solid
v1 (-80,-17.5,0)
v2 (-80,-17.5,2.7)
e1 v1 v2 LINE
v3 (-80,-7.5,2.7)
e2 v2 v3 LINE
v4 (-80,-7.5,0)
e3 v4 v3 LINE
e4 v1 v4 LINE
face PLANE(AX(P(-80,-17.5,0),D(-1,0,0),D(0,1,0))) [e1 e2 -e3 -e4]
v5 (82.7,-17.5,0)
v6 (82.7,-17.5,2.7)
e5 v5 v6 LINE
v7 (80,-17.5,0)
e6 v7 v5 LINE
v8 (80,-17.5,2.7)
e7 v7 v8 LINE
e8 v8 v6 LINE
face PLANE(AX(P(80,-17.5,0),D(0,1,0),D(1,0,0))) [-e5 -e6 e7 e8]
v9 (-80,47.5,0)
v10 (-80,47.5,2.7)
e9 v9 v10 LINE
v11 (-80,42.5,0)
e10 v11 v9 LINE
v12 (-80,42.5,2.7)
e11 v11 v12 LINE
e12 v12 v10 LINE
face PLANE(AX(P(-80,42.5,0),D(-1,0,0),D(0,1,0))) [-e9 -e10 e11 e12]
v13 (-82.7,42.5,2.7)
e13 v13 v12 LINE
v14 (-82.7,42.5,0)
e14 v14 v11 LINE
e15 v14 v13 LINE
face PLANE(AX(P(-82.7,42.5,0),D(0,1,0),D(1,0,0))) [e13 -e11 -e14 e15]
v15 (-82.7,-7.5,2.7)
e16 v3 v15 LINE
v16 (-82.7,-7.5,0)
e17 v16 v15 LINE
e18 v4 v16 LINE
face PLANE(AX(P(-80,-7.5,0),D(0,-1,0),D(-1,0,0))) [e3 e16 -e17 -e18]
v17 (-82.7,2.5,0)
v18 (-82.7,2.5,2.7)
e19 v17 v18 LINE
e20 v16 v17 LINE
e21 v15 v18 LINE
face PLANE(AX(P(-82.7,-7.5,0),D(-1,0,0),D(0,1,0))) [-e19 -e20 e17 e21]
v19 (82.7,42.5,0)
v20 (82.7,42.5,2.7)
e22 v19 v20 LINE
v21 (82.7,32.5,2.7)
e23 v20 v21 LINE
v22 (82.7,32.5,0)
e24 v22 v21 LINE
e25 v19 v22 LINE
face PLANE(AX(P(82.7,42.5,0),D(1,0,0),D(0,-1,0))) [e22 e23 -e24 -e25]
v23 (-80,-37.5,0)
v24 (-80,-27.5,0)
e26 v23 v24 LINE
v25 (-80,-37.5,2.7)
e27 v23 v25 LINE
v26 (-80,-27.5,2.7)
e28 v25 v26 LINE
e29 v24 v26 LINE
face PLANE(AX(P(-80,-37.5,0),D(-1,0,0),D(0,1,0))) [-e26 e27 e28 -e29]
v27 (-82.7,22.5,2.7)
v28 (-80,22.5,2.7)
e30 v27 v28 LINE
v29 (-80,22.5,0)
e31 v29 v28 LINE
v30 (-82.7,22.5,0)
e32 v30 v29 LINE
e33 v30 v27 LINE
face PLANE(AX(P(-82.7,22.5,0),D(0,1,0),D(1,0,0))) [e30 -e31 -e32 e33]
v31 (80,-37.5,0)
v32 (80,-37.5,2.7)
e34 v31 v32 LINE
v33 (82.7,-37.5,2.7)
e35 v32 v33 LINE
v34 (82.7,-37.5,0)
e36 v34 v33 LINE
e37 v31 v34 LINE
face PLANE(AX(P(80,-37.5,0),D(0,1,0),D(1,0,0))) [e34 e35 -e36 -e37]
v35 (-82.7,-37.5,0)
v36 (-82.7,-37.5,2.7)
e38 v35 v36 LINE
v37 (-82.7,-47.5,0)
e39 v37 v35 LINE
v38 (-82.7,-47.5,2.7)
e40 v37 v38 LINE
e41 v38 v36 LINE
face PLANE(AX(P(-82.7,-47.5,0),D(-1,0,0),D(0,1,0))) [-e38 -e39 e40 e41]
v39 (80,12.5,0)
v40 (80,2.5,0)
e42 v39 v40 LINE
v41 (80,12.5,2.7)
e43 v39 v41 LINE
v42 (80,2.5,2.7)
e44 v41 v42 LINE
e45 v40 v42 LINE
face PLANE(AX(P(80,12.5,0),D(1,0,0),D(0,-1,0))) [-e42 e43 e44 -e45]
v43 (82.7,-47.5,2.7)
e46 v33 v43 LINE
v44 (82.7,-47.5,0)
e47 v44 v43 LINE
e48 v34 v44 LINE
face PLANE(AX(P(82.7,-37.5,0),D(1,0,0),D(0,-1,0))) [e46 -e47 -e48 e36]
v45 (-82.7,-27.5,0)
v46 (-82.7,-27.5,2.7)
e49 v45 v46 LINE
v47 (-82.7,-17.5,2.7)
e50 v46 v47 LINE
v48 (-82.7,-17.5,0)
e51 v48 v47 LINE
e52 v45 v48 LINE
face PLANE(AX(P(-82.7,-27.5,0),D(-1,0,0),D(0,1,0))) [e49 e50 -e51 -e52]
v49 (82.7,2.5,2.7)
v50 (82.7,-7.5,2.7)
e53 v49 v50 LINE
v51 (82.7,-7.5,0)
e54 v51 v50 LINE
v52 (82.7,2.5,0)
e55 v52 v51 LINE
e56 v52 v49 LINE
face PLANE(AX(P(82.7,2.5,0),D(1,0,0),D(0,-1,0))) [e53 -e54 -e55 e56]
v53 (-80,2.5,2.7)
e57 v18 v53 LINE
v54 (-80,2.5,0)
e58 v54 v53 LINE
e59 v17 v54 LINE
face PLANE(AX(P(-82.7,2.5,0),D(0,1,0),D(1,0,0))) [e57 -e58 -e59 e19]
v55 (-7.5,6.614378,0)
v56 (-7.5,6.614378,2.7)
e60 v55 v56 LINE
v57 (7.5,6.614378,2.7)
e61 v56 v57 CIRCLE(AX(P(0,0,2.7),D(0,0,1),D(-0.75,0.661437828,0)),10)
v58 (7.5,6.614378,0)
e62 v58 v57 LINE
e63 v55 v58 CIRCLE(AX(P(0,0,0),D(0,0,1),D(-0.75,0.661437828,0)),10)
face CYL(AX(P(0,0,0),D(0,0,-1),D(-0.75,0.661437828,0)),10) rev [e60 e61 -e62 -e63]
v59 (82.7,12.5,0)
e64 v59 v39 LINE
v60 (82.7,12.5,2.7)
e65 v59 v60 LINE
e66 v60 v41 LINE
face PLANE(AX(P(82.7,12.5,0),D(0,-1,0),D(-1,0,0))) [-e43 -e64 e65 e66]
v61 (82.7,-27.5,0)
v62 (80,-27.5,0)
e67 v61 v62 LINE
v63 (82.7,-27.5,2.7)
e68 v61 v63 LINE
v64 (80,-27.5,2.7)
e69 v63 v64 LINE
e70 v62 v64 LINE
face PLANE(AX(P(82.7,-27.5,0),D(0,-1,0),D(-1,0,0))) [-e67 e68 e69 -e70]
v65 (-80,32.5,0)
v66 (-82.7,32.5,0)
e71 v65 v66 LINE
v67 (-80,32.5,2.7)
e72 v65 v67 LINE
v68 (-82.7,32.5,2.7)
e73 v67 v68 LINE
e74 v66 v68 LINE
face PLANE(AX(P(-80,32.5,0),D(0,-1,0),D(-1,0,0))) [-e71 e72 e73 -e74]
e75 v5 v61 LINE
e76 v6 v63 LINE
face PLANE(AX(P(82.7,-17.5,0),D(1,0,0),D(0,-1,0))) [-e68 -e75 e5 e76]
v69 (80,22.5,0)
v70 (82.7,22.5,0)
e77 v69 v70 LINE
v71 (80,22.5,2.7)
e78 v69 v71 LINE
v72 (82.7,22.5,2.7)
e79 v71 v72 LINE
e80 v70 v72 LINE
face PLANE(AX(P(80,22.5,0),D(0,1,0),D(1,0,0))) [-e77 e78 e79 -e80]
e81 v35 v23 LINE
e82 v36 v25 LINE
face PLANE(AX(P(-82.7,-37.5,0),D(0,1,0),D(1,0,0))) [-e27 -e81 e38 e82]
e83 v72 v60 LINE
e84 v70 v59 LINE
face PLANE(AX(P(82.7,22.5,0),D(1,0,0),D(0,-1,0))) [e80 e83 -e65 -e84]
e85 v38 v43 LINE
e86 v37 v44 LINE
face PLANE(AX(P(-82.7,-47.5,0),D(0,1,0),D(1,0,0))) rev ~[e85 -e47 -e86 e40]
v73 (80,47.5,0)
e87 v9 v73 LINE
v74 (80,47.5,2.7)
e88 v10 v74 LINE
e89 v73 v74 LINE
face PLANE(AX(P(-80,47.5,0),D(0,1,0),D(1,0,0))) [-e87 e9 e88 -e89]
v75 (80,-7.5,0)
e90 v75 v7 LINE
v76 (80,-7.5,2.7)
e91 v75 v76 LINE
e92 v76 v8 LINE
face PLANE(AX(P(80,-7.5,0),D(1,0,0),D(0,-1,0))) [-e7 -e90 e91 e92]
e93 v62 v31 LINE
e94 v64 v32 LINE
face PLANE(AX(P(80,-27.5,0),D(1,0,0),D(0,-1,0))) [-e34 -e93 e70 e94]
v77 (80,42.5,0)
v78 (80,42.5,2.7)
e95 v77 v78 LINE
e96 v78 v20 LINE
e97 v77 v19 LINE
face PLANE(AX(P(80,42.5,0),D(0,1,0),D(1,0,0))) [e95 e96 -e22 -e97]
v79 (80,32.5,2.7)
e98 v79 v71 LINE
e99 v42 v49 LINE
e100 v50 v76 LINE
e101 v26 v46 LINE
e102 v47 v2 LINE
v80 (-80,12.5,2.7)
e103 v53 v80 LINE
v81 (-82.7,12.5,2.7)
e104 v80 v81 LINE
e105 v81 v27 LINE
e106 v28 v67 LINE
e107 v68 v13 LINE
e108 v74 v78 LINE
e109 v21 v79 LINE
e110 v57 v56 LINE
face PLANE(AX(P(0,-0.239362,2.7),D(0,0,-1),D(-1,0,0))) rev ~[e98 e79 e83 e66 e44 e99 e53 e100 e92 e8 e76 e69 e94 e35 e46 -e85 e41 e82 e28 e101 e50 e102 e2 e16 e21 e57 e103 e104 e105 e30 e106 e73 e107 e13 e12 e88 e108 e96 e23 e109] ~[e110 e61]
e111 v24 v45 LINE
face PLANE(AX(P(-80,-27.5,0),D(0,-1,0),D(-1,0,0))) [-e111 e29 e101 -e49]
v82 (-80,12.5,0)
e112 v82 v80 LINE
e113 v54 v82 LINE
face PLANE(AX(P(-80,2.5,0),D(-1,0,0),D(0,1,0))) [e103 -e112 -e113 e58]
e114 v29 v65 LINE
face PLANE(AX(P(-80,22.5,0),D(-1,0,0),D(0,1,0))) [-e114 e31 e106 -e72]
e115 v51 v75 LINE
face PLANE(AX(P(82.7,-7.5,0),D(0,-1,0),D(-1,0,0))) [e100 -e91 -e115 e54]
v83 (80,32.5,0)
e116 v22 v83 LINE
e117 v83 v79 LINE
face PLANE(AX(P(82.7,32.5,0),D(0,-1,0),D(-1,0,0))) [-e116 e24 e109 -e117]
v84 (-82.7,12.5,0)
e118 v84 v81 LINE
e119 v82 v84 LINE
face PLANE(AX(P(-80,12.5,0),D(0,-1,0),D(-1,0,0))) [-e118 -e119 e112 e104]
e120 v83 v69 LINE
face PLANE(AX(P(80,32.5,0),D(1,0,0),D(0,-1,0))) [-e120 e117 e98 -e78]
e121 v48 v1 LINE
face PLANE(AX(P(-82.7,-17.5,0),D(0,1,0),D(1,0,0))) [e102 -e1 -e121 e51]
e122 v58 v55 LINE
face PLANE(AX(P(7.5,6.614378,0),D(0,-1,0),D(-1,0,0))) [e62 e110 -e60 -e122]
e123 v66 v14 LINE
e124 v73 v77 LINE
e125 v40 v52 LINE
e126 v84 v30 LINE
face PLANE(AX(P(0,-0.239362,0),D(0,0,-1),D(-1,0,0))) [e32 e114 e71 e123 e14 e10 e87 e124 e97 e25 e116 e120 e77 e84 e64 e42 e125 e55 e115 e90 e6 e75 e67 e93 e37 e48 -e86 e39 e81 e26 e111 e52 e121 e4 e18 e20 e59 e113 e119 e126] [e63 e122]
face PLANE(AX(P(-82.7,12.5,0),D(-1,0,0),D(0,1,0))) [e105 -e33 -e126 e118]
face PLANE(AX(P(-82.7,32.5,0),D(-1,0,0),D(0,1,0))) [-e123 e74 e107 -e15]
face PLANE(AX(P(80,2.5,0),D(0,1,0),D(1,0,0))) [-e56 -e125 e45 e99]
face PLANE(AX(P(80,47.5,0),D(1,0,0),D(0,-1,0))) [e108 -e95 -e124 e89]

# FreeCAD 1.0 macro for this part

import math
import FreeCAD as App
import Part
import Sketcher
from FreeCAD import Vector
Q = App.Units.Quantity

doc = App.newDocument("Part")
params = doc.addObject("Spreadsheet::Sheet", "Params")
for row, (alias, value) in enumerate([
    ("sketch1_radius", "10 mm"),
    ("sketch1_width", "160 mm"),
    ("sketch1_width2", "15 mm"),
    ("sketch1_height", "10 mm"),
    ("sketch1_height2", "5 mm"),
    ("pad1_length", "2.7 mm"),
], start=1):
    params.set(f"A{row}", alias)
    params.set(f"B{row}", "=" + value)
    params.setAlias(f"B{row}", alias)

body = doc.addObject("PartDesign::Body", "Body")

sketch1 = body.newObject("Sketcher::SketchObject", "Sketch")
sketch1.AttachmentSupport = (doc.getObject("XY_Plane"), [""])
sketch1.MapMode = "FlatFace"
sketch1.addGeometry(Part.LineSegment(Vector(82.7, -17.5, 0), Vector(80, -17.5, 0)), False)
sketch1.addGeometry(Part.LineSegment(Vector(80, -17.5, 0), Vector(80, -7.5, 0)), False)
sketch1.addGeometry(Part.LineSegment(Vector(80, -7.5, 0), Vector(82.7, -7.5, 0)), False)
sketch1.addGeometry(Part.LineSegment(Vector(82.7, -7.5, 0), Vector(82.7, 2.5, 0)), False)
sketch1.addGeometry(Part.LineSegment(Vector(82.7, 2.5, 0), Vector(80, 2.5, 0)), False)
sketch1.addGeometry(Part.LineSegment(Vector(80, 2.5, 0), Vector(80, 12.5, 0)), False)
sketch1.addGeometry(Part.LineSegment(Vector(80, 12.5, 0), Vector(82.7, 12.5, 0)), False)
sketch1.addGeometry(Part.LineSegment(Vector(82.7, 12.5, 0), Vector(82.7, 22.5, 0)), False)
sketch1.addGeometry(Part.LineSegment(Vector(82.7, 22.5, 0), Vector(80, 22.5, 0)), False)
sketch1.addGeometry(Part.LineSegment(Vector(80, 22.5, 0), Vector(80, 32.5, 0)), False)
sketch1.addGeometry(Part.LineSegment(Vector(80, 32.5, 0), Vector(82.7, 32.5, 0)), False)
sketch1.addGeometry(Part.LineSegment(Vector(82.7, 32.5, 0), Vector(82.7, 42.5, 0)), False)
sketch1.addGeometry(Part.LineSegment(Vector(82.7, 42.5, 0), Vector(80, 42.5, 0)), False)
sketch1.addGeometry(Part.LineSegment(Vector(80, 42.5, 0), Vector(80, 47.5, 0)), False)
sketch1.addGeometry(Part.LineSegment(Vector(80, 47.5, 0), Vector(-80, 47.5, 0)), False)
sketch1.addGeometry(Part.LineSegment(Vector(-80, 47.5, 0), Vector(-80, 42.5, 0)), False)
sketch1.addGeometry(Part.LineSegment(Vector(-80, 42.5, 0), Vector(-82.7, 42.5, 0)), False)
sketch1.addGeometry(Part.LineSegment(Vector(-82.7, 42.5, 0), Vector(-82.7, 32.5, 0)), False)
sketch1.addGeometry(Part.LineSegment(Vector(-82.7, 32.5, 0), Vector(-80, 32.5, 0)), False)
sketch1.addGeometry(Part.LineSegment(Vector(-80, 32.5, 0), Vector(-80, 22.5, 0)), False)
sketch1.addGeometry(Part.LineSegment(Vector(-80, 22.5, 0), Vector(-82.7, 22.5, 0)), False)
sketch1.addGeometry(Part.LineSegment(Vector(-82.7, 22.5, 0), Vector(-82.7, 12.5, 0)), False)
sketch1.addGeometry(Part.LineSegment(Vector(-82.7, 12.5, 0), Vector(-80, 12.5, 0)), False)
sketch1.addGeometry(Part.LineSegment(Vector(-80, 12.5, 0), Vector(-80, 2.5, 0)), False)
sketch1.addGeometry(Part.LineSegment(Vector(-80, 2.5, 0), Vector(-82.7, 2.5, 0)), False)
sketch1.addGeometry(Part.LineSegment(Vector(-82.7, 2.5, 0), Vector(-82.7, -7.5, 0)), False)
sketch1.addGeometry(Part.LineSegment(Vector(-82.7, -7.5, 0), Vector(-80, -7.5, 0)), False)
sketch1.addGeometry(Part.LineSegment(Vector(-80, -7.5, 0), Vector(-80, -17.5, 0)), False)
sketch1.addGeometry(Part.LineSegment(Vector(-80, -17.5, 0), Vector(-82.7, -17.5, 0)), False)
sketch1.addGeometry(Part.LineSegment(Vector(-82.7, -17.5, 0), Vector(-82.7, -27.5, 0)), False)
sketch1.addGeometry(Part.LineSegment(Vector(-82.7, -27.5, 0), Vector(-80, -27.5, 0)), False)
sketch1.addGeometry(Part.LineSegment(Vector(-80, -27.5, 0), Vector(-80, -37.5, 0)), False)
sketch1.addGeometry(Part.LineSegment(Vector(-80, -37.5, 0), Vector(-82.7, -37.5, 0)), False)
sketch1.addGeometry(Part.LineSegment(Vector(-82.7, -37.5, 0), Vector(-82.7, -47.5, 0)), False)
sketch1.addGeometry(Part.LineSegment(Vector(-82.7, -47.5, 0), Vector(82.7, -47.5, 0)), False)
sketch1.addGeometry(Part.LineSegment(Vector(82.7, -47.5, 0), Vector(82.7, -37.5, 0)), False)
sketch1.addGeometry(Part.LineSegment(Vector(82.7, -37.5, 0), Vector(80, -37.5, 0)), False)
sketch1.addGeometry(Part.LineSegment(Vector(80, -37.5, 0), Vector(80, -27.5, 0)), False)
sketch1.addGeometry(Part.LineSegment(Vector(80, -27.5, 0), Vector(82.7, -27.5, 0)), False)
sketch1.addGeometry(Part.LineSegment(Vector(82.7, -27.5, 0), Vector(82.7, -17.5, 0)), False)
sketch1.addGeometry(Part.LineSegment(Vector(-7.5, 6.614378, 0), Vector(7.5, 6.614378, 0)), False)
sketch1.addGeometry(Part.ArcOfCircle(Part.Circle(Vector(0, 0, 0), Vector(0, 0, 1), 10), math.radians(138.590378), math.radians(401.409622)), False)
sketch1.addConstraint(Sketcher.Constraint("Coincident", 0, 2, 1, 1))
sketch1.addConstraint(Sketcher.Constraint("Coincident", 1, 2, 2, 1))
sketch1.addConstraint(Sketcher.Constraint("Coincident", 2, 2, 3, 1))
sketch1.addConstraint(Sketcher.Constraint("Coincident", 3, 2, 4, 1))
sketch1.addConstraint(Sketcher.Constraint("Coincident", 4, 2, 5, 1))
sketch1.addConstraint(Sketcher.Constraint("Coincident", 5, 2, 6, 1))
sketch1.addConstraint(Sketcher.Constraint("Coincident", 6, 2, 7, 1))
sketch1.addConstraint(Sketcher.Constraint("Coincident", 7, 2, 8, 1))
sketch1.addConstraint(Sketcher.Constraint("Coincident", 8, 2, 9, 1))
sketch1.addConstraint(Sketcher.Constraint("Coincident", 9, 2, 10, 1))
sketch1.addConstraint(Sketcher.Constraint("Coincident", 10, 2, 11, 1))
sketch1.addConstraint(Sketcher.Constraint("Coincident", 11, 2, 12, 1))
sketch1.addConstraint(Sketcher.Constraint("Coincident", 12, 2, 13, 1))
sketch1.addConstraint(Sketcher.Constraint("Coincident", 13, 2, 14, 1))
sketch1.addConstraint(Sketcher.Constraint("Coincident", 14, 2, 15, 1))
sketch1.addConstraint(Sketcher.Constraint("Coincident", 15, 2, 16, 1))
sketch1.addConstraint(Sketcher.Constraint("Coincident", 16, 2, 17, 1))
sketch1.addConstraint(Sketcher.Constraint("Coincident", 17, 2, 18, 1))
sketch1.addConstraint(Sketcher.Constraint("Coincident", 18, 2, 19, 1))
sketch1.addConstraint(Sketcher.Constraint("Coincident", 19, 2, 20, 1))
sketch1.addConstraint(Sketcher.Constraint("Coincident", 20, 2, 21, 1))
sketch1.addConstraint(Sketcher.Constraint("Coincident", 21, 2, 22, 1))
sketch1.addConstraint(Sketcher.Constraint("Coincident", 22, 2, 23, 1))
sketch1.addConstraint(Sketcher.Constraint("Coincident", 23, 2, 24, 1))
sketch1.addConstraint(Sketcher.Constraint("Coincident", 24, 2, 25, 1))
sketch1.addConstraint(Sketcher.Constraint("Coincident", 25, 2, 26, 1))
sketch1.addConstraint(Sketcher.Constraint("Coincident", 26, 2, 27, 1))
sketch1.addConstraint(Sketcher.Constraint("Coincident", 27, 2, 28, 1))
sketch1.addConstraint(Sketcher.Constraint("Coincident", 28, 2, 29, 1))
sketch1.addConstraint(Sketcher.Constraint("Coincident", 29, 2, 30, 1))
sketch1.addConstraint(Sketcher.Constraint("Coincident", 30, 2, 31, 1))
sketch1.addConstraint(Sketcher.Constraint("Coincident", 31, 2, 32, 1))
sketch1.addConstraint(Sketcher.Constraint("Coincident", 32, 2, 33, 1))
sketch1.addConstraint(Sketcher.Constraint("Coincident", 33, 2, 34, 1))
sketch1.addConstraint(Sketcher.Constraint("Coincident", 34, 2, 35, 1))
sketch1.addConstraint(Sketcher.Constraint("Coincident", 35, 2, 36, 1))
sketch1.addConstraint(Sketcher.Constraint("Coincident", 36, 2, 37, 1))
sketch1.addConstraint(Sketcher.Constraint("Coincident", 37, 2, 38, 1))
sketch1.addConstraint(Sketcher.Constraint("Coincident", 38, 2, 39, 1))
sketch1.addConstraint(Sketcher.Constraint("Coincident", 39, 2, 0, 1))
sketch1.addConstraint(Sketcher.Constraint("Coincident", 40, 1, 41, 1))
sketch1.addConstraint(Sketcher.Constraint("Coincident", 41, 2, 40, 2))
sketch1.addConstraint(Sketcher.Constraint("Horizontal", 0))
sketch1.addConstraint(Sketcher.Constraint("Vertical", 1))
sketch1.addConstraint(Sketcher.Constraint("Horizontal", 2))
sketch1.addConstraint(Sketcher.Constraint("Vertical", 3))
sketch1.addConstraint(Sketcher.Constraint("Horizontal", 4))
sketch1.addConstraint(Sketcher.Constraint("Vertical", 5))
sketch1.addConstraint(Sketcher.Constraint("Horizontal", 6))
sketch1.addConstraint(Sketcher.Constraint("Vertical", 7))
sketch1.addConstraint(Sketcher.Constraint("Horizontal", 8))
sketch1.addConstraint(Sketcher.Constraint("Vertical", 9))
sketch1.addConstraint(Sketcher.Constraint("Horizontal", 10))
sketch1.addConstraint(Sketcher.Constraint("Vertical", 11))
sketch1.addConstraint(Sketcher.Constraint("Horizontal", 12))
sketch1.addConstraint(Sketcher.Constraint("Vertical", 13))
sketch1.addConstraint(Sketcher.Constraint("Horizontal", 14))
sketch1.addConstraint(Sketcher.Constraint("Vertical", 15))
sketch1.addConstraint(Sketcher.Constraint("Horizontal", 16))
sketch1.addConstraint(Sketcher.Constraint("Vertical", 17))
sketch1.addConstraint(Sketcher.Constraint("Horizontal", 18))
sketch1.addConstraint(Sketcher.Constraint("Vertical", 19))
sketch1.addConstraint(Sketcher.Constraint("Horizontal", 20))
sketch1.addConstraint(Sketcher.Constraint("Vertical", 21))
sketch1.addConstraint(Sketcher.Constraint("Horizontal", 22))
sketch1.addConstraint(Sketcher.Constraint("Vertical", 23))
sketch1.addConstraint(Sketcher.Constraint("Horizontal", 24))
sketch1.addConstraint(Sketcher.Constraint("Vertical", 25))
sketch1.addConstraint(Sketcher.Constraint("Horizontal", 26))
sketch1.addConstraint(Sketcher.Constraint("Vertical", 27))
sketch1.addConstraint(Sketcher.Constraint("Horizontal", 28))
sketch1.addConstraint(Sketcher.Constraint("Vertical", 29))
sketch1.addConstraint(Sketcher.Constraint("Horizontal", 30))
sketch1.addConstraint(Sketcher.Constraint("Vertical", 31))
sketch1.addConstraint(Sketcher.Constraint("Horizontal", 32))
sketch1.addConstraint(Sketcher.Constraint("Vertical", 33))
sketch1.addConstraint(Sketcher.Constraint("Horizontal", 34))
sketch1.addConstraint(Sketcher.Constraint("Vertical", 35))
sketch1.addConstraint(Sketcher.Constraint("Horizontal", 36))
sketch1.addConstraint(Sketcher.Constraint("Vertical", 37))
sketch1.addConstraint(Sketcher.Constraint("Horizontal", 38))
sketch1.addConstraint(Sketcher.Constraint("Vertical", 39))
sketch1.addConstraint(Sketcher.Constraint("Horizontal", 40))
sketch1.addConstraint(Sketcher.Constraint("Coincident", 41, 3, -1, 1))
sketch1.addConstraint(Sketcher.Constraint("Symmetric", 12, 2, 15, 2, -2))
sketch1.addConstraint(Sketcher.Constraint("Symmetric", 10, 2, 17, 2, -2))
sketch1.addConstraint(Sketcher.Constraint("Symmetric", 8, 2, 19, 2, -2))
sketch1.addConstraint(Sketcher.Constraint("Symmetric", 6, 2, 21, 2, -2))
sketch1.addConstraint(Sketcher.Constraint("Symmetric", 4, 2, 23, 2, -2))
sketch1.addConstraint(Sketcher.Constraint("Symmetric", 2, 2, 25, 2, -2))
sketch1.addConstraint(Sketcher.Constraint("Symmetric", 0, 2, 27, 2, -2))
sketch1.addConstraint(Sketcher.Constraint("Symmetric", 32, 2, 35, 2, -2))
sketch1.addConstraint(Sketcher.Constraint("Symmetric", 30, 2, 37, 2, -2))
sketch1.addConstraint(Sketcher.Constraint("Vertical", 1, 2, 4, 2))
sketch1.addConstraint(Sketcher.Constraint("Vertical", 3, 2, 6, 2))
sketch1.addConstraint(Sketcher.Constraint("Vertical", 5, 2, 8, 2))
sketch1.addConstraint(Sketcher.Constraint("Vertical", 7, 2, 10, 2))
sketch1.addConstraint(Sketcher.Constraint("Vertical", 9, 2, 12, 2))
sketch1.addConstraint(Sketcher.Constraint("Vertical", 25, 2, 28, 2))
sketch1.addConstraint(Sketcher.Constraint("Vertical", 27, 2, 30, 2))
sketch1.addConstraint(Sketcher.Constraint("Vertical", 29, 2, 32, 2))
sketch1.addConstraint(Sketcher.Constraint("Vertical", 35, 2, 38, 2))
sketch1.addConstraint(Sketcher.Constraint("Equal", 1, 3))
sketch1.addConstraint(Sketcher.Constraint("Equal", 3, 5))
sketch1.addConstraint(Sketcher.Constraint("Equal", 5, 7))
sketch1.addConstraint(Sketcher.Constraint("Equal", 7, 9))
sketch1.addConstraint(Sketcher.Constraint("Equal", 9, 11))
sketch1.addConstraint(Sketcher.Constraint("Equal", 27, 29))
sketch1.addConstraint(Sketcher.Constraint("Equal", 29, 31))
sketch1.addConstraint(Sketcher.Constraint("Equal", 31, 33))
sketch1.addConstraint(Sketcher.Constraint("Radius", 41, Q("10 mm")))
sketch1.addConstraint(Sketcher.Constraint("DistanceX", 14, 2, 14, 1, Q("160 mm")))
sketch1.addConstraint(Sketcher.Constraint("DistanceX", 40, 1, 40, 2, Q("15 mm")))
sketch1.addConstraint(Sketcher.Constraint("DistanceY", 1, 1, 1, 2, Q("10 mm")))
sketch1.addConstraint(Sketcher.Constraint("DistanceY", 13, 1, 13, 2, Q("5 mm")))
sketch1.addConstraint(Sketcher.Constraint("DistanceX", 0, 2, 0, 1, Q("2.7 mm")))
sketch1.addConstraint(Sketcher.Constraint("DistanceY", 0, 2, -1, 1, Q("17.5 mm")))
sketch1.setExpression("Constraints[110]", "Params.sketch1_radius")
sketch1.setExpression("Constraints[111]", "Params.sketch1_width")
sketch1.setExpression("Constraints[112]", "Params.sketch1_width2")
sketch1.setExpression("Constraints[113]", "Params.sketch1_height")
sketch1.setExpression("Constraints[114]", "Params.sketch1_height2")
pad1 = body.newObject("PartDesign::Pad", "Pad")
pad1.Profile = sketch1
pad1.setExpression("Length", "Params.pad1_length")

doc.recompute()
